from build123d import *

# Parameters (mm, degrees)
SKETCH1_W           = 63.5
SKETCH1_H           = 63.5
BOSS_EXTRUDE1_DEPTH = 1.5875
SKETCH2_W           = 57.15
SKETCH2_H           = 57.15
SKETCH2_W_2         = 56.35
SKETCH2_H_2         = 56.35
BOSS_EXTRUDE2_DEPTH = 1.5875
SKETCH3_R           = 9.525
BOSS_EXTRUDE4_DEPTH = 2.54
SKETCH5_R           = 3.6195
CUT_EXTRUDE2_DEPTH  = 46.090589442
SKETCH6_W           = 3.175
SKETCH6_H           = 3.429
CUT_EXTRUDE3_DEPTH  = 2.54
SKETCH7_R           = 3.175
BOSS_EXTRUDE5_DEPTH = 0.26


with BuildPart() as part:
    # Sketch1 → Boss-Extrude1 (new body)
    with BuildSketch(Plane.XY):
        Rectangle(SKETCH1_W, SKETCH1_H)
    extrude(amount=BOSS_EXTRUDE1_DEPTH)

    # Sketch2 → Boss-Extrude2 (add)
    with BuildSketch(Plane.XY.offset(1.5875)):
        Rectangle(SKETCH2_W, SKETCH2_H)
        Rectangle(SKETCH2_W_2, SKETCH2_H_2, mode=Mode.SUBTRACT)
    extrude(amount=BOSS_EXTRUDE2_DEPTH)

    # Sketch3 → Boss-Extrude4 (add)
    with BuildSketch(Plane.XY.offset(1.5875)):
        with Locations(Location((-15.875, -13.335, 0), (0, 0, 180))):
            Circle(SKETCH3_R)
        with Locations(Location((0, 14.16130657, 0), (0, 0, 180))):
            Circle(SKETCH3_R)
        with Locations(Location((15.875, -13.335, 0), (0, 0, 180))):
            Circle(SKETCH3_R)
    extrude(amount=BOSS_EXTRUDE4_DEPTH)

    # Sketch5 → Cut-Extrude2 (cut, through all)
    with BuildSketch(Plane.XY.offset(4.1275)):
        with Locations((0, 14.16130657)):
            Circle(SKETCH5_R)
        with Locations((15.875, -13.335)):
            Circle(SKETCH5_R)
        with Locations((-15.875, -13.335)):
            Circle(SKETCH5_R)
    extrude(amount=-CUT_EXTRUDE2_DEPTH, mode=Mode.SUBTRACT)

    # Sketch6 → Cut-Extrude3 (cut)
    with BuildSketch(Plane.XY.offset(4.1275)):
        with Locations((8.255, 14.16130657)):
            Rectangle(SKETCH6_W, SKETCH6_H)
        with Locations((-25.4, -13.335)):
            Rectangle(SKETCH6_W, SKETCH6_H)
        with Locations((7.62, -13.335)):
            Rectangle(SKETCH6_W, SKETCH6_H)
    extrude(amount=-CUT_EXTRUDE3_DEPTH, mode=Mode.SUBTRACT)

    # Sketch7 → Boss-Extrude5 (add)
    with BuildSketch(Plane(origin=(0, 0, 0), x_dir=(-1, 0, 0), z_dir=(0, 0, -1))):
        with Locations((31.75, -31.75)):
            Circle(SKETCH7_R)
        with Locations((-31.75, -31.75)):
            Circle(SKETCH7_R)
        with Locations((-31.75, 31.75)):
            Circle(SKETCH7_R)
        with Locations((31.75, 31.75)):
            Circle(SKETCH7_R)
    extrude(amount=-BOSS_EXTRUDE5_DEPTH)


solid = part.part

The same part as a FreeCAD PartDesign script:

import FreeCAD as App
import Part
import Sketcher
Q = App.Units.Quantity

doc = App.newDocument("Part")
params = doc.addObject("Spreadsheet::Sheet", "Params")
for row, (alias, value) in enumerate([
    ("sketch1_width", "2.5 in"),
    ("pad1_length", "0.0625 in"),
    ("sketch2_width", "2.25 in"),
    ("pad2_length", "0.0625 in"),
    ("sketch3_diameter", "0.75 in"),
    ("pad3_length", "0.1 in"),
    ("sketch4_diameter", "0.285 in"),
    ("sketch5_width", "0.125 in"),
    ("sketch5_height", "0.135 in"),
    ("pocket2_length", "0.1 in"),
    ("sketch6_diameter", "0.25 in"),
    ("pad4_length", "0.26 mm"),
], start=1):
    params.set(f"A{row}", alias)
    params.set(f"B{row}", "=" + value)
    params.setAlias(f"B{row}", alias)

body = doc.addObject("PartDesign::Body", "Body")

# Sketch on XY plane
sketch1 = body.newObject("Sketcher::SketchObject", "Sketch")
sketch1.AttachmentSupport = (doc.getObject("XY_Plane"), [""])
sketch1.MapMode = "FlatFace"
sketch1.addGeometry([
    Part.LineSegment(App.Vector(-32, 32, 0), App.Vector(-32, -32, 0)),
    Part.LineSegment(App.Vector(-32, -32, 0), App.Vector(32, -32, 0)),
    Part.LineSegment(App.Vector(32, -32, 0), App.Vector(32, 32, 0)),
    Part.LineSegment(App.Vector(32, 32, 0), App.Vector(-32, 32, 0)),
], False)
sketch1.addConstraint([
    Sketcher.Constraint("Coincident", 0, 2, 1, 1),
    Sketcher.Constraint("Coincident", 1, 2, 2, 1),
    Sketcher.Constraint("Coincident", 2, 2, 3, 1),
    Sketcher.Constraint("Coincident", 3, 2, 0, 1),
    Sketcher.Constraint("Vertical", 0),
    Sketcher.Constraint("Horizontal", 1),
    Sketcher.Constraint("Vertical", 2),
    Sketcher.Constraint("Horizontal", 3),
    Sketcher.Constraint("Symmetric", 0, 2, 2, 2, -1, 1),
    Sketcher.Constraint("Equal", 3, 0),
    Sketcher.Constraint("DistanceX", 1, 1, 1, 2, Q("2.5 in")),
])
sketch1.setExpression("Constraints[10]", "Params.sketch1_width")
pad1 = body.newObject("PartDesign::Pad", "Pad")
pad1.Profile = sketch1
pad1.setExpression("Length", "Params.pad1_length")

# Sketch on XY plane
sketch2 = body.newObject("Sketcher::SketchObject", "Sketch001")
sketch2.AttachmentSupport = (doc.getObject("XY_Plane"), [""])
sketch2.MapMode = "FlatFace"
sketch2.AttachmentOffset = App.Placement(App.Vector(0, 0, 0.0625 * 25.4), App.Rotation())
sketch2.addGeometry([
    Part.LineSegment(App.Vector(-29, 29, 0), App.Vector(-29, -29, 0)),  # 0
    Part.LineSegment(App.Vector(-29, -29, 0), App.Vector(29, -29, 0)),  # 1
    Part.LineSegment(App.Vector(29, -29, 0), App.Vector(29, 29, 0)),  # 2
    Part.LineSegment(App.Vector(29, 29, 0), App.Vector(-29, 29, 0)),  # 3
    Part.LineSegment(App.Vector(28, -28, 0), App.Vector(-28, -28, 0)),  # 4
    Part.LineSegment(App.Vector(-28, -28, 0), App.Vector(-28, 28, 0)),  # 5
    Part.LineSegment(App.Vector(-28, 28, 0), App.Vector(28, 28, 0)),  # 6
    Part.LineSegment(App.Vector(28, 28, 0), App.Vector(28, -28, 0)),  # 7
], False)
sketch2.addConstraint([
    Sketcher.Constraint("Coincident", 0, 2, 1, 1),
    Sketcher.Constraint("Coincident", 1, 2, 2, 1),
    Sketcher.Constraint("Coincident", 2, 2, 3, 1),
    Sketcher.Constraint("Coincident", 3, 2, 0, 1),
    Sketcher.Constraint("Coincident", 4, 2, 5, 1),
    Sketcher.Constraint("Coincident", 5, 2, 6, 1),
    Sketcher.Constraint("Coincident", 6, 2, 7, 1),
    Sketcher.Constraint("Coincident", 7, 2, 4, 1),
    Sketcher.Constraint("Vertical", 0),
    Sketcher.Constraint("Horizontal", 1),
    Sketcher.Constraint("Vertical", 2),
    Sketcher.Constraint("Horizontal", 3),
    Sketcher.Constraint("Horizontal", 4),
    Sketcher.Constraint("Vertical", 5),
    Sketcher.Constraint("Horizontal", 6),
    Sketcher.Constraint("Vertical", 7),
    Sketcher.Constraint("Symmetric", 0, 2, 2, 2, -1, 1),
    Sketcher.Constraint("Symmetric", 4, 2, 6, 2, -1, 1),
    Sketcher.Constraint("Equal", 3, 0),
    Sketcher.Constraint("Equal", 6, 5),
    Sketcher.Constraint("DistanceX", 1, 1, 1, 2, Q("2.25 in")),
    Sketcher.Constraint("DistanceX", 4, 2, 4, 1, Q("56.35 mm")),
])
sketch2.setExpression("Constraints[20]", "Params.sketch2_width")
pad2 = body.newObject("PartDesign::Pad", "Pad001")
pad2.Profile = sketch2
pad2.setExpression("Length", "Params.pad2_length")

# Sketch on XY plane
sketch3 = body.newObject("Sketcher::SketchObject", "Sketch002")
sketch3.AttachmentSupport = (doc.getObject("XY_Plane"), [""])
sketch3.MapMode = "FlatFace"
sketch3.AttachmentOffset = App.Placement(App.Vector(0, 0, 0.0625 * 25.4), App.Rotation())
sketch3.addGeometry([
    Part.Circle(App.Vector(-16, -13, 0), App.Vector(0, 0, 1), 10),
    Part.Circle(App.Vector(0, 14, 0), App.Vector(0, 0, 1), 10),
    Part.Circle(App.Vector(16, -13, 0), App.Vector(0, 0, 1), 10),
], False)
sketch3.addConstraint([
    Sketcher.Constraint("Equal", 0, 1),
    Sketcher.Constraint("Equal", 1, 2),
    Sketcher.Constraint("Symmetric", 0, 3, 2, 3, -2),
    Sketcher.Constraint("PointOnObject", 1, 3, -2),
    Sketcher.Constraint("Diameter", 0, Q("0.75 in")),
    Sketcher.Constraint("DistanceX", 0, 3, 2, 3, Q("1.25 in")),
    Sketcher.Constraint("DistanceY", 0, 3, -1, 1, Q("0.525 in")),
    Sketcher.Constraint("DistanceY", -1, 1, 1, 3, Q("14.161307 mm")),
])
sketch3.setExpression("Constraints[4]", "Params.sketch3_diameter")
pad3 = body.newObject("PartDesign::Pad", "Pad002")
pad3.Profile = sketch3
pad3.setExpression("Length", "Params.pad3_length")

# Sketch on XY plane
sketch4 = body.newObject("Sketcher::SketchObject", "Sketch003")
sketch4.AttachmentSupport = (doc.getObject("XY_Plane"), [""])
sketch4.MapMode = "FlatFace"
sketch4.AttachmentOffset = App.Placement(App.Vector(0, 0, 0.1625 * 25.4), App.Rotation())
sketch4.addGeometry([
    Part.Circle(App.Vector(0, 14.2, 0), App.Vector(0, 0, 1), 3.6),
    Part.Circle(App.Vector(15.9, -13.3, 0), App.Vector(0, 0, 1), 3.6),
    Part.Circle(App.Vector(-15.9, -13.3, 0), App.Vector(0, 0, 1), 3.6),
], False)
sketch4.addConstraint([
    Sketcher.Constraint("Equal", 0, 1),
    Sketcher.Constraint("Equal", 1, 2),
    Sketcher.Constraint("Symmetric", 1, 3, 2, 3, -2),
    Sketcher.Constraint("PointOnObject", 0, 3, -2),
    Sketcher.Constraint("Diameter", 0, Q("0.285 in")),
    Sketcher.Constraint("DistanceX", 2, 3, 1, 3, Q("1.25 in")),
    Sketcher.Constraint("DistanceY", 1, 3, -1, 1, Q("0.525 in")),
    Sketcher.Constraint("DistanceY", -1, 1, 0, 3, Q("14.161307 mm")),
])
sketch4.setExpression("Constraints[4]", "Params.sketch4_diameter")
pocket1 = body.newObject("PartDesign::Pocket", "Pocket")
pocket1.Profile = sketch4
pocket1.Type = "ThroughAll"

# Sketch on XY plane
sketch5 = body.newObject("Sketcher::SketchObject", "Sketch004")
sketch5.AttachmentSupport = (doc.getObject("XY_Plane"), [""])
sketch5.MapMode = "FlatFace"
sketch5.AttachmentOffset = App.Placement(App.Vector(0, 0, 0.1625 * 25.4), App.Rotation())
sketch5.addGeometry([
    Part.LineSegment(App.Vector(6.7, 15.9, 0), App.Vector(6.7, 12.4, 0)),  # 0
    Part.LineSegment(App.Vector(6.7, 12.4, 0), App.Vector(9.8, 12.4, 0)),  # 1
    Part.LineSegment(App.Vector(9.8, 12.4, 0), App.Vector(9.8, 15.9, 0)),  # 2
    Part.LineSegment(App.Vector(9.8, 15.9, 0), App.Vector(6.7, 15.9, 0)),  # 3
    Part.LineSegment(App.Vector(-27, -11.6, 0), App.Vector(-27, -15, 0)),  # 4
    Part.LineSegment(App.Vector(-27, -15, 0), App.Vector(-23.8, -15, 0)),  # 5
    Part.LineSegment(App.Vector(-23.8, -15, 0), App.Vector(-23.8, -11.6, 0)),  # 6
    Part.LineSegment(App.Vector(-23.8, -11.6, 0), App.Vector(-27, -11.6, 0)),  # 7
    Part.LineSegment(App.Vector(6, -11.6, 0), App.Vector(6, -15, 0)),  # 8
    Part.LineSegment(App.Vector(6, -15, 0), App.Vector(9.2, -15, 0)),  # 9
    Part.LineSegment(App.Vector(9.2, -15, 0), App.Vector(9.2, -11.6, 0)),  # 10
    Part.LineSegment(App.Vector(9.2, -11.6, 0), App.Vector(6, -11.6, 0)),  # 11
], False)
sketch5.addConstraint([
    Sketcher.Constraint("Coincident", 0, 2, 1, 1),
    Sketcher.Constraint("Coincident", 1, 2, 2, 1),
    Sketcher.Constraint("Coincident", 2, 2, 3, 1),
    Sketcher.Constraint("Coincident", 3, 2, 0, 1),
    Sketcher.Constraint("Coincident", 4, 2, 5, 1),
    Sketcher.Constraint("Coincident", 5, 2, 6, 1),
    Sketcher.Constraint("Coincident", 6, 2, 7, 1),
    Sketcher.Constraint("Coincident", 7, 2, 4, 1),
    Sketcher.Constraint("Coincident", 8, 2, 9, 1),
    Sketcher.Constraint("Coincident", 9, 2, 10, 1),
    Sketcher.Constraint("Coincident", 10, 2, 11, 1),
    Sketcher.Constraint("Coincident", 11, 2, 8, 1),
    Sketcher.Constraint("Vertical", 0),
    Sketcher.Constraint("Horizontal", 1),
    Sketcher.Constraint("Vertical", 2),
    Sketcher.Constraint("Horizontal", 3),
    Sketcher.Constraint("Vertical", 4),
    Sketcher.Constraint("Horizontal", 5),
    Sketcher.Constraint("Vertical", 6),
    Sketcher.Constraint("Horizontal", 7),
    Sketcher.Constraint("Vertical", 8),
    Sketcher.Constraint("Horizontal", 9),
    Sketcher.Constraint("Vertical", 10),
    Sketcher.Constraint("Horizontal", 11),
    Sketcher.Constraint("Horizontal", 5, 2, 8, 2),
    Sketcher.Constraint("Horizontal", 7, 2, 10, 2),
    Sketcher.Constraint("Equal", 3, 5),
    Sketcher.Constraint("Equal", 7, 9),
    Sketcher.Constraint("Equal", 2, 4),
    Sketcher.Constraint("DistanceX", 5, 2, 0, 2, Q("1.2 in")),
    Sketcher.Constraint("DistanceX", 0, 2, 9, 2, Q("0.1 in")),
    Sketcher.Constraint("DistanceX", 1, 1, 1, 2, Q("0.125 in")),
    Sketcher.Constraint("DistanceY", 0, 2, 0, 1, Q("0.135 in")),
    Sketcher.Constraint("DistanceX", 4, 2, -1, 1, Q("1.0625 in")),
    Sketcher.Constraint("DistanceY", 4, 2, -1, 1, Q("0.5925 in")),
    Sketcher.Constraint("DistanceY", -1, 1, 0, 2, Q("12.446807 mm")),
])
sketch5.setExpression("Constraints[31]", "Params.sketch5_width")
sketch5.setExpression("Constraints[32]", "Params.sketch5_height")
pocket2 = body.newObject("PartDesign::Pocket", "Pocket001")
pocket2.Profile = sketch5
pocket2.setExpression("Length", "Params.pocket2_length")

# Sketch on XY plane
sketch6 = body.newObject("Sketcher::SketchObject", "Sketch005")
sketch6.AttachmentSupport = (doc.getObject("XY_Plane"), [""])
sketch6.MapMode = "FlatFace"
sketch6.addGeometry([
    Part.Circle(App.Vector(-31.8, -31.8, 0), App.Vector(0, 0, 1), 3.2),
    Part.Circle(App.Vector(31.8, -31.8, 0), App.Vector(0, 0, 1), 3.2),
    Part.Circle(App.Vector(31.8, 31.8, 0), App.Vector(0, 0, 1), 3.2),
    Part.Circle(App.Vector(-31.8, 31.8, 0), App.Vector(0, 0, 1), 3.2),
], False)
sketch6.addConstraint([
    Sketcher.Constraint("Equal", 0, 1),
    Sketcher.Constraint("Equal", 1, 2),
    Sketcher.Constraint("Equal", 2, 3),
    Sketcher.Constraint("Symmetric", 0, 3, 2, 3, -1, 1),
    Sketcher.Constraint("Symmetric", 1, 3, 3, 3, -1, 1),
    Sketcher.Constraint("Symmetric", 0, 3, 1, 3, -2),
    Sketcher.Constraint("Diameter", 0, Q("0.25 in")),
    Sketcher.Constraint("DistanceX", 0, 3, 1, 3, Q("2.5 in")),
    Sketcher.Constraint("DistanceY", 1, 3, 2, 3, Q("2.5 in")),
])
sketch6.setExpression("Constraints[6]", "Params.sketch6_diameter")
pad4 = body.newObject("PartDesign::Pad", "Pad003")
pad4.Profile = sketch6
pad4.setExpression("Length", "Params.pad4_length")

doc.recompute()
